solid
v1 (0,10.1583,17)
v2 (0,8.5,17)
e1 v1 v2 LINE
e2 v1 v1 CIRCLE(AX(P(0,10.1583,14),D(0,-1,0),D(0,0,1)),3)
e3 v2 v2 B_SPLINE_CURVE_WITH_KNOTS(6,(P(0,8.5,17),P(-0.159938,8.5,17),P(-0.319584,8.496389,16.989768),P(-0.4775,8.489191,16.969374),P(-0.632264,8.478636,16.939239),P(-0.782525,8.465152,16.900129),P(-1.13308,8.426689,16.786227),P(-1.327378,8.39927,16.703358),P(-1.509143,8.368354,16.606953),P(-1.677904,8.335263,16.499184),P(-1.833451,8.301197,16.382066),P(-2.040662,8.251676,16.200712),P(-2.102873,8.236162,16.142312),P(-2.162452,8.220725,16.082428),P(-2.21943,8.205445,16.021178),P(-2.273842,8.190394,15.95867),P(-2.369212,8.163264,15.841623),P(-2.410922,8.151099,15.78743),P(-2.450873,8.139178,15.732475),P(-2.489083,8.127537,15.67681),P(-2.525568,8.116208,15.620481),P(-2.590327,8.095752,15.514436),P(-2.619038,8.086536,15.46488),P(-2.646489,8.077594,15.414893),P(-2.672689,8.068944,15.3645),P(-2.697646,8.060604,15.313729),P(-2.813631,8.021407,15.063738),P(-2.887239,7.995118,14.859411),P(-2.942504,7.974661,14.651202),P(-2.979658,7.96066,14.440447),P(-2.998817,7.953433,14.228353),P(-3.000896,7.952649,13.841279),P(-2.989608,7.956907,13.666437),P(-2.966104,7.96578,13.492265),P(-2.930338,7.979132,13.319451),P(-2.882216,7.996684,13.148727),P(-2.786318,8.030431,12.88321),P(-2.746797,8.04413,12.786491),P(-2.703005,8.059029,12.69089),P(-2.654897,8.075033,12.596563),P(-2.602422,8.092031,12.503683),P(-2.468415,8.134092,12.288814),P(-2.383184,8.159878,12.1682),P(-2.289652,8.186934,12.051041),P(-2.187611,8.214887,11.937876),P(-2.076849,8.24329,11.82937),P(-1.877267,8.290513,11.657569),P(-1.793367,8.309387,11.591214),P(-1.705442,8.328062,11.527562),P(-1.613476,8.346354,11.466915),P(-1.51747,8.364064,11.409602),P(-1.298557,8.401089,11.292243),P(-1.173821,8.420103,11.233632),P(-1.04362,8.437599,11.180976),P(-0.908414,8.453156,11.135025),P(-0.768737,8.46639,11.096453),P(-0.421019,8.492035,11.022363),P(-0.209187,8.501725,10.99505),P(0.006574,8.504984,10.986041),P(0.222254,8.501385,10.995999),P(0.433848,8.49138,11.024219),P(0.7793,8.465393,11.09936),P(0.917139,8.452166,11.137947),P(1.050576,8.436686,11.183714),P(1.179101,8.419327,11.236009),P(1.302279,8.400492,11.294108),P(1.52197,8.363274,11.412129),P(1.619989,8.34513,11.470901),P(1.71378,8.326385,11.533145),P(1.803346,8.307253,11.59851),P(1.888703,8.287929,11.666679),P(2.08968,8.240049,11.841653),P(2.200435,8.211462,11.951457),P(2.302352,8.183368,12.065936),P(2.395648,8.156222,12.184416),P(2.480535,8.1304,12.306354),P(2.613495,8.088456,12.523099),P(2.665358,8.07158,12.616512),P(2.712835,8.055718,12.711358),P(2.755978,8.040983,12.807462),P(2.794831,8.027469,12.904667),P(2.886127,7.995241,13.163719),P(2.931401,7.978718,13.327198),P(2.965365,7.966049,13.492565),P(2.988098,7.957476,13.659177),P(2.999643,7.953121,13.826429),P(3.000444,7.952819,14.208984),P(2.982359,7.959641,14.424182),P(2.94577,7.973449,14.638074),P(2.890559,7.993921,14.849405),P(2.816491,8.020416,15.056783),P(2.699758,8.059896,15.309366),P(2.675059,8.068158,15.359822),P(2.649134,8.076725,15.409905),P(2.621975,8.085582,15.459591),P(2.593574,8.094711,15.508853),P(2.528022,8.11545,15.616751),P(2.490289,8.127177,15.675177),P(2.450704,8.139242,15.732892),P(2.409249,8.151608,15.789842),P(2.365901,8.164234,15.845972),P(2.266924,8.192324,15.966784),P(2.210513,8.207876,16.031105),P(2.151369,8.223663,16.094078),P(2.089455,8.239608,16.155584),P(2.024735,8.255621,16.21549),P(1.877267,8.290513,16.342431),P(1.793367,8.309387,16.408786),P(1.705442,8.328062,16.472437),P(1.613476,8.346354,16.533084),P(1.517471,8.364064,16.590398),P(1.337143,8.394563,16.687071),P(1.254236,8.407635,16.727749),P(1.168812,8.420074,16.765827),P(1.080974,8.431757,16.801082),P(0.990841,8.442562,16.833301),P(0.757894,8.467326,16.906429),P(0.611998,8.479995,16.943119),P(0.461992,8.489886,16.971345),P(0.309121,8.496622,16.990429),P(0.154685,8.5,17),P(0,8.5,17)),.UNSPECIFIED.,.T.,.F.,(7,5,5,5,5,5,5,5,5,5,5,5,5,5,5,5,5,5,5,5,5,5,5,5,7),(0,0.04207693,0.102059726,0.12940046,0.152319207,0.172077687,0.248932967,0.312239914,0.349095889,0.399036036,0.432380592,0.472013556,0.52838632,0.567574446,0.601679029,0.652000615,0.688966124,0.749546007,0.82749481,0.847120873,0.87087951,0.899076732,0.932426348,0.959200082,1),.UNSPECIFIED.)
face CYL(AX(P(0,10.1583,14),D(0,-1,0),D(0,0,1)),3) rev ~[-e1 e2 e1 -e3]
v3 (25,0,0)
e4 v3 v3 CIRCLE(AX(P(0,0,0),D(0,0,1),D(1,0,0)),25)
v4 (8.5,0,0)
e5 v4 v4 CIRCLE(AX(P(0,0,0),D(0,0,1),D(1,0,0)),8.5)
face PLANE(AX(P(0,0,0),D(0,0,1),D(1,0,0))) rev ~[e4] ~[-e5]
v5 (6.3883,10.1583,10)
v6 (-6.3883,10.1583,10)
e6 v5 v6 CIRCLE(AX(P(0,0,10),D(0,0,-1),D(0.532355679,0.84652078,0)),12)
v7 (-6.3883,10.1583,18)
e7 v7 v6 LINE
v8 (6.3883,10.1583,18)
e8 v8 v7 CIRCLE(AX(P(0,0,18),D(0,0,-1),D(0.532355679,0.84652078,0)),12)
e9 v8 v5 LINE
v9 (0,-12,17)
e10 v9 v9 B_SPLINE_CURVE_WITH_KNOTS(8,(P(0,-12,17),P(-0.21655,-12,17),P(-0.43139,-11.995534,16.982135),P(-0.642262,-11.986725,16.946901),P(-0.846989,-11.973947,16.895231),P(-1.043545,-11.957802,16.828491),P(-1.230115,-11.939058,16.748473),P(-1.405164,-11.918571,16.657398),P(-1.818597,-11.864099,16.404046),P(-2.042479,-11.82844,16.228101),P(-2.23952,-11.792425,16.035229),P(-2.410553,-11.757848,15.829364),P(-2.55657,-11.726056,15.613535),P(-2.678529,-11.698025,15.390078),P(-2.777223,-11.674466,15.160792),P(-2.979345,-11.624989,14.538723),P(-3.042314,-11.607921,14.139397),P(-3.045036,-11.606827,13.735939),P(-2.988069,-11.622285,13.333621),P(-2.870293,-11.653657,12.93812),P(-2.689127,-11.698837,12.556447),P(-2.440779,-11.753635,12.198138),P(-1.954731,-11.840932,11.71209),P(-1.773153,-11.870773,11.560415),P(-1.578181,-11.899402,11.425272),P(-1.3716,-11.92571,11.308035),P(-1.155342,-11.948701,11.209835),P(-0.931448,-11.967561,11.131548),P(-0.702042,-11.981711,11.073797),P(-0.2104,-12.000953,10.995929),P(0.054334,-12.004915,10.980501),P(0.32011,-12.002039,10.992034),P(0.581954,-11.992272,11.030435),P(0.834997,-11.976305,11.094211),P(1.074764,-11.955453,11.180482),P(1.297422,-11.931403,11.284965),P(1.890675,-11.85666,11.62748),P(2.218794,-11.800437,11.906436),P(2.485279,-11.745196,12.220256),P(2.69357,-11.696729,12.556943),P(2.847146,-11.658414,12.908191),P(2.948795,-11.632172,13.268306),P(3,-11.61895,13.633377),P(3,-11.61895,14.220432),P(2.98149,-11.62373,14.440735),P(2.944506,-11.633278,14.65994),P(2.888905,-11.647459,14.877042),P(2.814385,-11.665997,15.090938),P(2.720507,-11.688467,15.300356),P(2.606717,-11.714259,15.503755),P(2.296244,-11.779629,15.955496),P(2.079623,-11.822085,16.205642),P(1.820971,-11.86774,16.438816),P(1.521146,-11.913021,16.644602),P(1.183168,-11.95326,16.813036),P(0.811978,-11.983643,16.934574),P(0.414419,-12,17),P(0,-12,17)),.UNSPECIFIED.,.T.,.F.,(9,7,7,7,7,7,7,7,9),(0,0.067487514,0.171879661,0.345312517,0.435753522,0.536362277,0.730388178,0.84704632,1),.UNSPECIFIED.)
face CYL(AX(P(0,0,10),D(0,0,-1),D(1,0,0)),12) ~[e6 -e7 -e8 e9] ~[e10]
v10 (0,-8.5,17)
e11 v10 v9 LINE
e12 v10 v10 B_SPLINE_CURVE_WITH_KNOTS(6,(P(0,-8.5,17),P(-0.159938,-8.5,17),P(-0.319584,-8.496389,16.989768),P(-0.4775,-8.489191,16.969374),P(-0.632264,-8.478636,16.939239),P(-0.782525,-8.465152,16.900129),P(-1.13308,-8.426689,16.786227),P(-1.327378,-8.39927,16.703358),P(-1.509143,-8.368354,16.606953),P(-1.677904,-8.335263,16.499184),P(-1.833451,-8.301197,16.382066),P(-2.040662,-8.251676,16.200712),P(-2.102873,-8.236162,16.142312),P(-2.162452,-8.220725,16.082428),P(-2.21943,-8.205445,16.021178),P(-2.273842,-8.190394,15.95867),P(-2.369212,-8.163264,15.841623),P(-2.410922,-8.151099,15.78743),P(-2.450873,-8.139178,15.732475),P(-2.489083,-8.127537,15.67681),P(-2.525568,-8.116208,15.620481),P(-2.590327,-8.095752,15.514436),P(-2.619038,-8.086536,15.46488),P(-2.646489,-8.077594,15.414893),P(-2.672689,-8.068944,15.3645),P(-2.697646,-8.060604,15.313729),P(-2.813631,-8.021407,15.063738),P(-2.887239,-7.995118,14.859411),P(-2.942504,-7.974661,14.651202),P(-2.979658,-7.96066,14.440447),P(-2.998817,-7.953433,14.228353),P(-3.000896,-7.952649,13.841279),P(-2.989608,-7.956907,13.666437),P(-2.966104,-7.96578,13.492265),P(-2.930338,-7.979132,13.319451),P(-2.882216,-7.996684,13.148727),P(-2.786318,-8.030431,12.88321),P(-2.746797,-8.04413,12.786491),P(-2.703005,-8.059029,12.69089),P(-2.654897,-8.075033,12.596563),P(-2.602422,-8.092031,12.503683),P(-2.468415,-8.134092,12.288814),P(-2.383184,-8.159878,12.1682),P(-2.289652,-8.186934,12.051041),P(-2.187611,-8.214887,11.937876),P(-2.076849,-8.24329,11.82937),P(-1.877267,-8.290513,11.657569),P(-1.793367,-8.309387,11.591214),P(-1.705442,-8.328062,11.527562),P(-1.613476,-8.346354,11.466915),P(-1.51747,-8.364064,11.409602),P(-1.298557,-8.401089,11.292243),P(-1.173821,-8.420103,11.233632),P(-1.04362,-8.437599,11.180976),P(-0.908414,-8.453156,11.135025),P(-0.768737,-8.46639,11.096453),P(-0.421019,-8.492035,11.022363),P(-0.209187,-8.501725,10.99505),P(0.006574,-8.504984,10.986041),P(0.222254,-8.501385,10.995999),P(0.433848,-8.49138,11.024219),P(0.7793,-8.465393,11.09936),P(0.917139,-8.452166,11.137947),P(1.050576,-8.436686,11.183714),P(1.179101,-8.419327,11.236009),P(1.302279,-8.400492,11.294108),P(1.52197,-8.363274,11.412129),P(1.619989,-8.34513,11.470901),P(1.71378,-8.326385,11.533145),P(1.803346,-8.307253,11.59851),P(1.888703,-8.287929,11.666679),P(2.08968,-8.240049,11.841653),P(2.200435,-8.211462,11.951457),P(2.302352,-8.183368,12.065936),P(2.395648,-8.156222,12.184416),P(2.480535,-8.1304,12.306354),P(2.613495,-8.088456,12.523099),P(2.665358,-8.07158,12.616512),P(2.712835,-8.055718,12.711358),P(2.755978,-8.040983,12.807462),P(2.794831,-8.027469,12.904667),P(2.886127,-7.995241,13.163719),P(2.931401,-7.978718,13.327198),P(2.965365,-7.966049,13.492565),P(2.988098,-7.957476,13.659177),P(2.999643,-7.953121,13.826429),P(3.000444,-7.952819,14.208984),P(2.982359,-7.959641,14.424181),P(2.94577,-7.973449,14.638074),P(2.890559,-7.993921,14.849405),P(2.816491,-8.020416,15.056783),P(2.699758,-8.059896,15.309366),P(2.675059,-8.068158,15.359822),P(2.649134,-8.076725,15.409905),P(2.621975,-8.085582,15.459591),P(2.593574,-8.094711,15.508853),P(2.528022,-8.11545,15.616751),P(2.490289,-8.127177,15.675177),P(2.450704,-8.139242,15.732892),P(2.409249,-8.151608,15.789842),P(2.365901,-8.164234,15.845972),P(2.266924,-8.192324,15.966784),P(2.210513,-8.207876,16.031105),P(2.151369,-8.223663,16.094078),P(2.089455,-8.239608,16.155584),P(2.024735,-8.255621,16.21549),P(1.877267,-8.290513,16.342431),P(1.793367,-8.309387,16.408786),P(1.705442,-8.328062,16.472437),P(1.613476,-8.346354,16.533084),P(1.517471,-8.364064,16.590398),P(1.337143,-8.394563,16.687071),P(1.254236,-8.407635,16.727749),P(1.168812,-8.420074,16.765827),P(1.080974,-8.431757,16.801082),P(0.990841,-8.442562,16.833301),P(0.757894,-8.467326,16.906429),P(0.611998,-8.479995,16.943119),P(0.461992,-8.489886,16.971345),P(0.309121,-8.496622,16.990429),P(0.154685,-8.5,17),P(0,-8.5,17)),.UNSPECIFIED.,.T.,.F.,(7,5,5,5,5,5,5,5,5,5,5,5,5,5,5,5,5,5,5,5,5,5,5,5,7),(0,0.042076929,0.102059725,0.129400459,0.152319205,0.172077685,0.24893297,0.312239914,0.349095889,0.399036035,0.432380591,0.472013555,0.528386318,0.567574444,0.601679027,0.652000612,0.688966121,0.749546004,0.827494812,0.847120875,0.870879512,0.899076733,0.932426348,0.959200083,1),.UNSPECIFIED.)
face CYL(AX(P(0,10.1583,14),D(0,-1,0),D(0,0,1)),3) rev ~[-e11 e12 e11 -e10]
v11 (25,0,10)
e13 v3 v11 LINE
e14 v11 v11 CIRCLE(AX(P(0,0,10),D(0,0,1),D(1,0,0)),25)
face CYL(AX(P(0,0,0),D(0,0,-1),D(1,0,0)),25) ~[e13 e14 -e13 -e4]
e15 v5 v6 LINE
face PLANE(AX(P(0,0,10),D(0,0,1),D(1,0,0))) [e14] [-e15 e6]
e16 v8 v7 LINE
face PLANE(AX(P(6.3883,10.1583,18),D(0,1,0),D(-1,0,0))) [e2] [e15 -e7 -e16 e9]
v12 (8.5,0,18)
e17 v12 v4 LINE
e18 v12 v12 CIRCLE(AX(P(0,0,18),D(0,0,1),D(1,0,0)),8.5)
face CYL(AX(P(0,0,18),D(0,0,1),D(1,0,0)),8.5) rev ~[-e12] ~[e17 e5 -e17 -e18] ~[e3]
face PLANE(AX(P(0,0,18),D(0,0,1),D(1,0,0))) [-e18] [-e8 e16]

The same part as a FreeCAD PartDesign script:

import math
import FreeCAD as App
import Part
import Sketcher

V = App.Vector
Q = App.Units.Quantity

doc = App.newDocument("Part")
body = doc.addObject("PartDesign::Body", "Body")

# Sketch on XY plane
sketch1 = body.newObject("Sketcher::SketchObject", "Sketch")
sketch1.AttachmentSupport = (doc.getObject("XY_Plane"), [""])
sketch1.MapMode = "FlatFace"
sketch1.addGeometry(Part.Circle(V(0, 0, 0), V(0, 0, 1), 25), False)
sketch1.addConstraint(Sketcher.Constraint("Coincident", 0, 3, -1, 1))
sketch1.addConstraint(Sketcher.Constraint("Diameter", 0, Q("50 mm")))
pad1 = body.newObject("PartDesign::Pad", "Pad")
pad1.Profile = sketch1
pad1.Length = 10

# Sketch on XY plane
sketch2 = body.newObject("Sketcher::SketchObject", "Sketch001")
sketch2.AttachmentSupport = (doc.getObject("XY_Plane"), [""])
sketch2.MapMode = "FlatFace"
sketch2.AttachmentOffset = App.Placement(V(0, 0, 10), App.Rotation())
sketch2.addGeometry(Part.Circle(V(0, 0, 0), V(0, 0, 1), 12), False)
sketch2.addConstraint(Sketcher.Constraint("Coincident", 0, 3, -1, 1))
sketch2.addConstraint(Sketcher.Constraint("Diameter", 0, Q("24 mm")))
pad2 = body.newObject("PartDesign::Pad", "Pad001")
pad2.Profile = sketch2
pad2.Length = 8

# Sketch on XY plane
sketch3 = body.newObject("Sketcher::SketchObject", "Sketch002")
sketch3.AttachmentSupport = (doc.getObject("XY_Plane"), [""])
sketch3.MapMode = "FlatFace"
sketch3.AttachmentOffset = App.Placement(V(0, 0, 18), App.Rotation())
sketch3.addGeometry(Part.Circle(V(0, 0, 0), V(0, 0, 1), 8.5), False)
sketch3.addConstraint(Sketcher.Constraint("Coincident", 0, 3, -1, 1))
sketch3.addConstraint(Sketcher.Constraint("Diameter", 0, Q("17 mm")))
pocket1 = body.newObject("PartDesign::Pocket", "Pocket")
pocket1.Profile = sketch3
pocket1.Length = 30

# Sketch on XY plane
sketch4 = body.newObject("Sketcher::SketchObject", "Sketch003")
sketch4.AttachmentSupport = (doc.getObject("XY_Plane"), [""])
sketch4.MapMode = "FlatFace"
sketch4.AttachmentOffset = App.Placement(V(0, 0, 18), App.Rotation())
sketch4.addGeometry(Part.LineSegment(V(-6.3883, 10.1583, 0), V(6.3883, 10.1583, 0)), False)
sketch4.addGeometry(Part.ArcOfCircle(Part.Circle(V(0, 0, 0), V(0, 0, 1), 12), math.radians(57.835243), math.radians(122.164757)), False)
sketch4.addConstraint(Sketcher.Constraint("Coincident", 0, 1, 1, 2))
sketch4.addConstraint(Sketcher.Constraint("Coincident", 1, 1, 0, 2))
sketch4.addConstraint(Sketcher.Constraint("Horizontal", 0))
sketch4.addConstraint(Sketcher.Constraint("Coincident", 1, 3, -1, 1))
sketch4.addConstraint(Sketcher.Constraint("Radius", 1, Q("12 mm")))
sketch4.addConstraint(Sketcher.Constraint("DistanceX", 0, 1, 0, 2, Q("12.7766 mm")))
pocket2 = body.newObject("PartDesign::Pocket", "Pocket001")
pocket2.Profile = sketch4
pocket2.Length = 8

# Sketch on XZ plane
sketch5 = body.newObject("Sketcher::SketchObject", "Sketch004")
sketch5.AttachmentSupport = (doc.getObject("XZ_Plane"), [""])
sketch5.MapMode = "FlatFace"
sketch5.AttachmentOffset = App.Placement(V(0, 0, -10.1583), App.Rotation())
sketch5.addGeometry(Part.Circle(V(0, 14, 0), V(0, 0, 1), 3), False)
sketch5.addConstraint(Sketcher.Constraint("PointOnObject", 0, 3, -2))
sketch5.addConstraint(Sketcher.Constraint("Diameter", 0, Q("6 mm")))
sketch5.addConstraint(Sketcher.Constraint("DistanceY", -1, 1, 0, 3, Q("14 mm")))
doc.recompute()
hole = body.newObject("PartDesign::Hole", "Hole")
hole.Profile = sketch5
hole.ThreadType = "None"
hole.Diameter = 6
hole.DepthType = "ThroughAll"
hole.Reversed = True

doc.recompute()
